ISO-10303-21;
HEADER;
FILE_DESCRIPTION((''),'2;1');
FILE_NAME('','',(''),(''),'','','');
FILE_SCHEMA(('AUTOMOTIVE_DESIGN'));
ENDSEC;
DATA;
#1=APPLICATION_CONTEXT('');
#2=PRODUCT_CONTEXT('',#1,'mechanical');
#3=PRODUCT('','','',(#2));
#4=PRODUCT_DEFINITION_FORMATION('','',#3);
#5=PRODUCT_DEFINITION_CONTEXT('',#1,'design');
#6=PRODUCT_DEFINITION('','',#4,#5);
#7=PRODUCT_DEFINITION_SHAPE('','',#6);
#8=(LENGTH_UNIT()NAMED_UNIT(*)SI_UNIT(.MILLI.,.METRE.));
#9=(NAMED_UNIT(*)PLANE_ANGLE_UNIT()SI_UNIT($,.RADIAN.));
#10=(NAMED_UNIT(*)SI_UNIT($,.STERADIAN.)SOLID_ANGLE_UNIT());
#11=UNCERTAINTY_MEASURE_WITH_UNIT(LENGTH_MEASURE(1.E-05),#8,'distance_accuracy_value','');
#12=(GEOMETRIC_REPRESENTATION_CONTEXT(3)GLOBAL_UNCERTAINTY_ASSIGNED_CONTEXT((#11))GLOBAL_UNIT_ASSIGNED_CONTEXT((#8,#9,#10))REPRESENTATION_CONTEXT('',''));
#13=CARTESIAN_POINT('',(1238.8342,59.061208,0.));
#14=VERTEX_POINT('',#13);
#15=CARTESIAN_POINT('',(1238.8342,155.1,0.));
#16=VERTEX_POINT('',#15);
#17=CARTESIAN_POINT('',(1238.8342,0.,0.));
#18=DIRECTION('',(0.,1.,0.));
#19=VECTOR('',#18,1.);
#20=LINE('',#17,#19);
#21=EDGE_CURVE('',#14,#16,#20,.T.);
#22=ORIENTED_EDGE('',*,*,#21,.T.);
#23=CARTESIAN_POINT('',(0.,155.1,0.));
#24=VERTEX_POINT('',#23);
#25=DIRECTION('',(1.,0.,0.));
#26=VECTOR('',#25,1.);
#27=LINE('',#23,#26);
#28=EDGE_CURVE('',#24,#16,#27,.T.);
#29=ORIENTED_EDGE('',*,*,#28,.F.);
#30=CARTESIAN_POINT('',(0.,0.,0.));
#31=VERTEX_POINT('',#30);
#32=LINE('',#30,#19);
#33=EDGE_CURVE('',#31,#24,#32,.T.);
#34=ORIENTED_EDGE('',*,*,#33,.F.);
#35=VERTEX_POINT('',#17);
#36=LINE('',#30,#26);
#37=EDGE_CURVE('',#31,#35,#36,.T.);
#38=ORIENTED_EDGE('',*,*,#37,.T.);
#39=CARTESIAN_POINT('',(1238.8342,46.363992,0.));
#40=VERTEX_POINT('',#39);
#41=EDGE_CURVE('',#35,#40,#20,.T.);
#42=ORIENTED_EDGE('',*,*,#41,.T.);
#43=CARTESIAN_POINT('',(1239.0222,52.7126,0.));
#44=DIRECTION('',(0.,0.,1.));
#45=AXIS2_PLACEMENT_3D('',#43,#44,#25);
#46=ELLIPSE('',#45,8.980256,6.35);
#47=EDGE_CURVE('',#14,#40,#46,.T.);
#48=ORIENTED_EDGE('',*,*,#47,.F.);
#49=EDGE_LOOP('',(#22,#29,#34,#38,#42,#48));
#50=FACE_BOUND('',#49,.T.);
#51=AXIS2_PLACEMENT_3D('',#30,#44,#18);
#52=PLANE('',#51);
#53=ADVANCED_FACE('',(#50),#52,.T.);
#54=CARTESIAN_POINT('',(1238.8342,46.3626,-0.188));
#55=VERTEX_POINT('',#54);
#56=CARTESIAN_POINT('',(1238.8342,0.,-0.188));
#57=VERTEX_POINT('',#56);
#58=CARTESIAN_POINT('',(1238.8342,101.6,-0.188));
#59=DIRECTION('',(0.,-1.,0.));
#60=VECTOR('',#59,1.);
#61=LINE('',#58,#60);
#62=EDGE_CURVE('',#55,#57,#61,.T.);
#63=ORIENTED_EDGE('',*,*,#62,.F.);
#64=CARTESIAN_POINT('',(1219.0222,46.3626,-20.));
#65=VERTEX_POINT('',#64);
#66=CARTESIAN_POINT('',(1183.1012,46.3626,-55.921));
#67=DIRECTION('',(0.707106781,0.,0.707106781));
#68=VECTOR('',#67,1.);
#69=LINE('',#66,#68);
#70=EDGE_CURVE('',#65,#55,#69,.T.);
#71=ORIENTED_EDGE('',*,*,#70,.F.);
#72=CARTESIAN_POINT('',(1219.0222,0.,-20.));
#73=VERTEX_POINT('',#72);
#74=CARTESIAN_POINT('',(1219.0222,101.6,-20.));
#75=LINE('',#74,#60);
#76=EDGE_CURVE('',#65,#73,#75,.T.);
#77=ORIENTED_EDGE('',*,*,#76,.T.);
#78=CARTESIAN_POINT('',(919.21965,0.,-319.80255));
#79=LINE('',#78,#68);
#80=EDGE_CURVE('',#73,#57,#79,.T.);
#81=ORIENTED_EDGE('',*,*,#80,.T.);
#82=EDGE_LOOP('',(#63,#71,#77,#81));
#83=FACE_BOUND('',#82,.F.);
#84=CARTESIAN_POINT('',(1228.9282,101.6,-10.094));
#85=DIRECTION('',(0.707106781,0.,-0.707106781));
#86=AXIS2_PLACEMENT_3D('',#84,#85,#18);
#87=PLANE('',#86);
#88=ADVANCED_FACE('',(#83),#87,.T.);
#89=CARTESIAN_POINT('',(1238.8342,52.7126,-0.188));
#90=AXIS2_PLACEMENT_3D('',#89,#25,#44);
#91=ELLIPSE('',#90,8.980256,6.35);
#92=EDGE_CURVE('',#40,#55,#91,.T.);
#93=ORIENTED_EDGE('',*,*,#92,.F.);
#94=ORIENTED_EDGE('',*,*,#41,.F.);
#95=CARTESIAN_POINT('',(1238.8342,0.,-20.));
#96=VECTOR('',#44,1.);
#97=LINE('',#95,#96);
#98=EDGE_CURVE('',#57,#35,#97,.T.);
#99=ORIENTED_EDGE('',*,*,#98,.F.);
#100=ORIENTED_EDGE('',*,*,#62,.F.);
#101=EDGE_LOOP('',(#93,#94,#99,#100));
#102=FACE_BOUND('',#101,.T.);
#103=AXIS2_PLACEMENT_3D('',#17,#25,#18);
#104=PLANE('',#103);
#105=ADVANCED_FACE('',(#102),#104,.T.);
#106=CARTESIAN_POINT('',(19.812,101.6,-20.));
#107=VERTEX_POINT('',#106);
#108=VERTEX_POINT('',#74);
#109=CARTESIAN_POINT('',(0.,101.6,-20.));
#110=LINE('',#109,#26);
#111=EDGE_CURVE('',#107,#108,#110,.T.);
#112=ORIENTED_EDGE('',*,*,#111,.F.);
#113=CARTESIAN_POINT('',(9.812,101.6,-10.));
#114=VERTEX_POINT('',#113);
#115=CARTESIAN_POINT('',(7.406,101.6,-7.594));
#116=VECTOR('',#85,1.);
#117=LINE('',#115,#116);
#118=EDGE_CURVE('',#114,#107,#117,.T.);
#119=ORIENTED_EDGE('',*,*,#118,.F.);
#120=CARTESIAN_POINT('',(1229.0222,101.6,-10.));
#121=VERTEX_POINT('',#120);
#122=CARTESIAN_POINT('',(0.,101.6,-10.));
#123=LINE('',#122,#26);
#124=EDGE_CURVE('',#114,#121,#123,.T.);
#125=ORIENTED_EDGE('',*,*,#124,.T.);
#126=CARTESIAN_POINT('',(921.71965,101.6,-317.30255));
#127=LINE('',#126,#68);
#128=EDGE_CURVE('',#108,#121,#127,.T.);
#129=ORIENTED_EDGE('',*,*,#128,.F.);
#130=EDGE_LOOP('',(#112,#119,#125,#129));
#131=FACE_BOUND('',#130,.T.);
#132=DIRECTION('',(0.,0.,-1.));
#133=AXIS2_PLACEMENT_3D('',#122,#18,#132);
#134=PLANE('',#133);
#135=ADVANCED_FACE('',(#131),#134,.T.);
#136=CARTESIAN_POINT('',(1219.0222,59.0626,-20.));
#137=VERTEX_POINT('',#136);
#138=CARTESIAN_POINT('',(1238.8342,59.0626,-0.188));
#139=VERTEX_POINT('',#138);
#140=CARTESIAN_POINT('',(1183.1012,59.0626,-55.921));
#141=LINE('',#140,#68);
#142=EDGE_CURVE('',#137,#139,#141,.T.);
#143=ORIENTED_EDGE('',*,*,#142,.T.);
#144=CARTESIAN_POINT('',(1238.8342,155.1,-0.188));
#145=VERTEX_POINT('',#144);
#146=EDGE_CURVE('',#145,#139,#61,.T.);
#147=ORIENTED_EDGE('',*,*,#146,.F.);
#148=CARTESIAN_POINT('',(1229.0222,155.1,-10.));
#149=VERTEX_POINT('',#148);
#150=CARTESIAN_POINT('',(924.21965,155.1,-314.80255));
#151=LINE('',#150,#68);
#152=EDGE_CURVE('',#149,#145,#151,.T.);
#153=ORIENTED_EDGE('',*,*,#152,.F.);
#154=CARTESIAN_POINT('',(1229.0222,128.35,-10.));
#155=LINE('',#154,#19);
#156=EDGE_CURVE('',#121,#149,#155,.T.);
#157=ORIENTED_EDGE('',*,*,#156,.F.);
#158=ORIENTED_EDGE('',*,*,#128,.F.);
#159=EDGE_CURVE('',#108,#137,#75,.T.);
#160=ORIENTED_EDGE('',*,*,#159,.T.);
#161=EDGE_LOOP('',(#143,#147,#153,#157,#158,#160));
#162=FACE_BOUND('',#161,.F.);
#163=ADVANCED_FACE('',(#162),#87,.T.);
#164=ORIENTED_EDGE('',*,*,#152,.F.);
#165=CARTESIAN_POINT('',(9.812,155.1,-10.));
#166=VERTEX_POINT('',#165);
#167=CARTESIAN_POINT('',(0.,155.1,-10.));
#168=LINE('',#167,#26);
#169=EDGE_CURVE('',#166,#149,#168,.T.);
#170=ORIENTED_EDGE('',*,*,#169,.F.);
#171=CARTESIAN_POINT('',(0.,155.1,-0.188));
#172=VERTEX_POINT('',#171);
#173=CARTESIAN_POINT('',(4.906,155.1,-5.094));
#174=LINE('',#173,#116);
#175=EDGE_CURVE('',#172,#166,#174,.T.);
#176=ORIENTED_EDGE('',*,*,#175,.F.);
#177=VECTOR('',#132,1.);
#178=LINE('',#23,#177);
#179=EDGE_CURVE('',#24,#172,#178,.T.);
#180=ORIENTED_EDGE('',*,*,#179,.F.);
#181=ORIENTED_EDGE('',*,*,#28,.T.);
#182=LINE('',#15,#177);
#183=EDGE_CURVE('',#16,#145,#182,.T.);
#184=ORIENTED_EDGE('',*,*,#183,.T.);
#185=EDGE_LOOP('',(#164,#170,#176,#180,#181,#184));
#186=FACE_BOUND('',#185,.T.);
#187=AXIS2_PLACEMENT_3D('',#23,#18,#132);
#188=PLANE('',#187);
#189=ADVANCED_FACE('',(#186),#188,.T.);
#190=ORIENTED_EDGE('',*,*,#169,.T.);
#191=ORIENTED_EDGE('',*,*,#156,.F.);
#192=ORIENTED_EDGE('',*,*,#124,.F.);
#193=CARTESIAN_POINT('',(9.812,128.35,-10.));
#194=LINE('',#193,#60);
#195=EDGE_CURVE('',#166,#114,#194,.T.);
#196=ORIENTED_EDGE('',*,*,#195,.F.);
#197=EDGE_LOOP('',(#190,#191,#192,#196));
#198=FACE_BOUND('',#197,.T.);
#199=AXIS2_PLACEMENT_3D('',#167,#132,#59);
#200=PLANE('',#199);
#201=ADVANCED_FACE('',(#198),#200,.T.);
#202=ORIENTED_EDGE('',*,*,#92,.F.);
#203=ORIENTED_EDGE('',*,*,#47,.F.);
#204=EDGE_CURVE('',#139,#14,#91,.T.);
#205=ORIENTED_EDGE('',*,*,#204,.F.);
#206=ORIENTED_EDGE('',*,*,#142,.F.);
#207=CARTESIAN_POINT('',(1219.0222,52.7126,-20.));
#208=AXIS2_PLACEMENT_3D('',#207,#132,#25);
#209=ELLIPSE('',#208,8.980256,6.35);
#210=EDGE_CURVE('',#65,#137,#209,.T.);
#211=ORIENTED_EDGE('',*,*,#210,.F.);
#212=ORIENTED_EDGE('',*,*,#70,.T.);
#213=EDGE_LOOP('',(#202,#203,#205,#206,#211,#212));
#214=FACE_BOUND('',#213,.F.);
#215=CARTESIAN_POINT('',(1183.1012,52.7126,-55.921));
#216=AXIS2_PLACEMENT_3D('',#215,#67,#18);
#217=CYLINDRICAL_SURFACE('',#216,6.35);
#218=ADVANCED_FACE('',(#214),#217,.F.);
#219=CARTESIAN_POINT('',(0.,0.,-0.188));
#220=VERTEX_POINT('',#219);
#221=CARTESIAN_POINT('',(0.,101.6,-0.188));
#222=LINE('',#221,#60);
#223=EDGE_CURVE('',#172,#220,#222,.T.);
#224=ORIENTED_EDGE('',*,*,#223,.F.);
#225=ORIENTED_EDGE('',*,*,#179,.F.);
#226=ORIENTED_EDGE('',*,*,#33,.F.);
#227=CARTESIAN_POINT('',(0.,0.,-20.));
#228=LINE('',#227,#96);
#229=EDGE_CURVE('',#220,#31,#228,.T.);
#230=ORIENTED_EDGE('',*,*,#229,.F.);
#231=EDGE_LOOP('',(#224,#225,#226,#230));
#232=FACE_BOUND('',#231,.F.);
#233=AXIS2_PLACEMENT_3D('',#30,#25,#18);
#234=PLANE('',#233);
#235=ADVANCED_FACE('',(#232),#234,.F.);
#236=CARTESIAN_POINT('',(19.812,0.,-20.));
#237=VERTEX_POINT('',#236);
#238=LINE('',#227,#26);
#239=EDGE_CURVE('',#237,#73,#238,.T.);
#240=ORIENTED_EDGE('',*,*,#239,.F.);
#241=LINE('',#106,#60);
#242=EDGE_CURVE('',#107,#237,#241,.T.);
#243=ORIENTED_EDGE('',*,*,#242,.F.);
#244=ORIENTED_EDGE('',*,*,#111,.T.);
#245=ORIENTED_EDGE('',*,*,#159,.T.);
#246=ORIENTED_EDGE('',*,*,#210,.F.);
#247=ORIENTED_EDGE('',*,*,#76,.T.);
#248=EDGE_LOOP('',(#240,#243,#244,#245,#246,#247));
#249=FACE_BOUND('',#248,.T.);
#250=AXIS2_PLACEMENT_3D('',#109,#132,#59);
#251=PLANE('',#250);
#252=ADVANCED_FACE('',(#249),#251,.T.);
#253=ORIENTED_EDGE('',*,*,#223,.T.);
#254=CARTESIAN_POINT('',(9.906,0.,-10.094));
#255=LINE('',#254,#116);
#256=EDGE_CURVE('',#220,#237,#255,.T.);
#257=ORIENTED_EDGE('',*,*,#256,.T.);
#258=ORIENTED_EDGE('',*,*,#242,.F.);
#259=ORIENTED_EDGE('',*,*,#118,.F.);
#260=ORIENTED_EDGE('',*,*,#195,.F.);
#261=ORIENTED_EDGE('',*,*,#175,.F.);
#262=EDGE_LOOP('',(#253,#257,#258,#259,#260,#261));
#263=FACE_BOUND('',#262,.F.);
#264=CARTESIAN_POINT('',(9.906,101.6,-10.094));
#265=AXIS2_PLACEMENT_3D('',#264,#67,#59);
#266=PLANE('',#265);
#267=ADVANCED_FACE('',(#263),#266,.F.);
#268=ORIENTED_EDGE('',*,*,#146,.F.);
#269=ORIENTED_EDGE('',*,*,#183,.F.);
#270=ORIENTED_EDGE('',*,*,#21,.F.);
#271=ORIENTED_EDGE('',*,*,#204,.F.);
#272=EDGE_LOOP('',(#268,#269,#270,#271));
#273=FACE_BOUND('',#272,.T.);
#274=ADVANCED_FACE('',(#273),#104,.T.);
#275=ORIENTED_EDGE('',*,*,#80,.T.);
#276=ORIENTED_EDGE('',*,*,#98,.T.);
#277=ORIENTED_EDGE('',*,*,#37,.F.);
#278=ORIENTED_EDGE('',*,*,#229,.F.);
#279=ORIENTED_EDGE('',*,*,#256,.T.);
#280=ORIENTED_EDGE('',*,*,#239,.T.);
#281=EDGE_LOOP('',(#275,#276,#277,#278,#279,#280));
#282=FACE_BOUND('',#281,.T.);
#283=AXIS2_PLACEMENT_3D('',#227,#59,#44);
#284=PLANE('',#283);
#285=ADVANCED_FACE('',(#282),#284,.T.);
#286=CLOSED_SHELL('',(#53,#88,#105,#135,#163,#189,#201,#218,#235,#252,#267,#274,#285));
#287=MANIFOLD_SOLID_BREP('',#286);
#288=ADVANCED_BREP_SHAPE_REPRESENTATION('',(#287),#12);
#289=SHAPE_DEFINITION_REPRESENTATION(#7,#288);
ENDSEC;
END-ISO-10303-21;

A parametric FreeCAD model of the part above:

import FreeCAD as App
import Part
import Sketcher
Q = App.Units.Quantity


def edges_at(feature, points):
    """Names of the edges that pass closest to the given points."""
    edges = feature.Shape.Edges
    near = lambda p: min(range(len(edges)), key=lambda i: edges[i].distToShape(Part.Vertex(*p))[0])
    return sorted({f"Edge{near(p) + 1}" for p in points})


def add_polygon(sketch, points):
    """Adds a closed chain of lines whose ends are joined by coincident constraints."""
    first, n = sketch.GeometryCount, len(points)
    for a, b in zip(points, points[1:] + points[:1]):
        sketch.addGeometry(Part.LineSegment(App.Vector(*a, 0), App.Vector(*b, 0)), False)
    for i in range(n):
        sketch.addConstraint(Sketcher.Constraint("Coincident", first + i, 2, first + (i + 1) % n, 1))

doc = App.newDocument("Part")
body = doc.addObject("PartDesign::Body", "Body")

sketch1 = body.newObject("Sketcher::SketchObject", "Sketch")
sketch1.AttachmentSupport = (doc.getObject("YZ_Plane"), [""])
sketch1.MapMode = "FlatFace"
add_polygon(sketch1, [(155.1, 0), (0, 0), (0, -20), (101.6, -20), (101.6, -10), (155.1, -10)])
sketch1.addConstraint([
    Sketcher.Constraint("Horizontal", 0),
    Sketcher.Constraint("Vertical", 1),
    Sketcher.Constraint("Horizontal", 2),
    Sketcher.Constraint("Vertical", 3),
    Sketcher.Constraint("Horizontal", 4),
    Sketcher.Constraint("Vertical", 5),
    Sketcher.Constraint("Coincident", 0, 2, -1, 1),
    Sketcher.Constraint("Equal", 3, 5),
    Sketcher.Constraint("DistanceX", 2, 1, 2, 2, Q("4 in")),
    Sketcher.Constraint("DistanceX", 0, 2, 0, 1, Q("6.1063 in")),
    Sketcher.Constraint("DistanceY", 1, 2, 1, 1, Q("0.7874 in")),
])
pad1 = body.newObject("PartDesign::Pad", "Pad")
pad1.Profile = sketch1
pad1.Length = Q("48.773 in")
doc.recompute()

chamfer = body.newObject("PartDesign::Chamfer", "Chamfer")
chamfer.Base = (pad1, edges_at(pad1, [(1238.834, 50.8, -20)]))
chamfer.Size = Q("0.78 in")
doc.recompute()

chamfer2 = body.newObject("PartDesign::Chamfer", "Chamfer001")
chamfer2.Base = (chamfer, edges_at(chamfer, [(0, 50.8, -20)]))
chamfer2.Size = Q("0.78 in")

sketch2 = body.newObject("Sketcher::SketchObject", "Sketch001")
sketch2.Placement = App.Placement(App.Vector(563.5901, 0, 563.5901), App.Rotation(App.Vector(-0.707106781, 0, 0.707106781), App.Vector(0, 0.999999999, 0), App.Vector(-0.707106781, 0, -0.707106781), "ZXY"))
sketch2.addGeometry(Part.Circle(App.Vector(-876.120999, 52.7126, 0), App.Vector(0, 0, 1), 6.35), False)
sketch2.addConstraint([
    Sketcher.Constraint("Diameter", 0, Q("0.5 in")),
    Sketcher.Constraint("DistanceY", -1, 1, 0, 3, Q("2.0753 in")),
    Sketcher.Constraint("DistanceX", 0, 3, -1, 1, Q("876.121 mm")),
])
doc.recompute()
hole = body.newObject("PartDesign::Hole", "Hole")
hole.Profile = sketch2
hole.ThreadType = "None"
hole.Diameter = Q("0.5 in")
hole.DepthType = "Dimension"
hole.Depth = Q("5 in")
hole.DrillPoint = "Angled"
hole.DrillPointAngle = 118

doc.recompute()
